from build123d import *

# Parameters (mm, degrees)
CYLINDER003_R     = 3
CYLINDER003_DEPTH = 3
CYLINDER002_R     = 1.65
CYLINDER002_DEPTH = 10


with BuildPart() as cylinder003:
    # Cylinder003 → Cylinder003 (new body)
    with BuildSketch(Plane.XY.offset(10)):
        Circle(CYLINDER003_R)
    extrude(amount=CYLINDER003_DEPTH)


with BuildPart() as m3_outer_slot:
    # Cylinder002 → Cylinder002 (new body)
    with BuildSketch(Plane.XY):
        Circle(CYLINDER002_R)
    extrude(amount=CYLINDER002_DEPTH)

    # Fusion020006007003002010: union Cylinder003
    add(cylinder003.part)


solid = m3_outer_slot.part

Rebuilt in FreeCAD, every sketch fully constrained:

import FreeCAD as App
import Part
import Sketcher
from FreeCAD import Vector
Q = App.Units.Quantity

doc = App.newDocument("Part")
body = doc.addObject("PartDesign::Body", "Body")

sketch1 = doc.addObject("Sketcher::SketchObject", "Sketch")
body.addObject(sketch1)
sketch1.AttachmentSupport = (doc.XY_Plane, [""])
sketch1.MapMode = "FlatFace"
sketch1.AttachmentOffset = App.Placement(Vector(0, 0, 10), App.Rotation())
sketch1.addGeometry(Part.Circle(Vector(0, 0, 0), Vector(0, 0, 1), 3), False)
sketch1.addConstraint([
    Sketcher.Constraint("Coincident", 0, 3, -1, 1),
    Sketcher.Constraint("Diameter", 0, Q("6 mm")),
])
pad1 = doc.addObject("PartDesign::Pad", "Pad")
body.addObject(pad1)
pad1.Profile = sketch1
pad1.Length = 3
body2 = doc.addObject("PartDesign::Body", "Body001")

sketch2 = doc.addObject("Sketcher::SketchObject", "Sketch001")
body2.addObject(sketch2)
sketch2.AttachmentSupport = (doc.getObject("XY_Plane001"), [""])
sketch2.MapMode = "FlatFace"
sketch2.addGeometry(Part.Circle(Vector(0, 0, 0), Vector(0, 0, 1), 1.6), False)
sketch2.addConstraint([
    Sketcher.Constraint("Coincident", 0, 3, -1, 1),
    Sketcher.Constraint("Diameter", 0, Q("3.3 mm")),
])
pad2 = doc.addObject("PartDesign::Pad", "Pad001")
body2.addObject(pad2)
pad2.Profile = sketch2
pad2.Length = 10
doc.recompute()

boolean = doc.addObject("PartDesign::Boolean", "Boolean")
body2.addObject(boolean)
boolean.Type = "Fuse"
boolean.addObjects([body])

doc.recompute()
